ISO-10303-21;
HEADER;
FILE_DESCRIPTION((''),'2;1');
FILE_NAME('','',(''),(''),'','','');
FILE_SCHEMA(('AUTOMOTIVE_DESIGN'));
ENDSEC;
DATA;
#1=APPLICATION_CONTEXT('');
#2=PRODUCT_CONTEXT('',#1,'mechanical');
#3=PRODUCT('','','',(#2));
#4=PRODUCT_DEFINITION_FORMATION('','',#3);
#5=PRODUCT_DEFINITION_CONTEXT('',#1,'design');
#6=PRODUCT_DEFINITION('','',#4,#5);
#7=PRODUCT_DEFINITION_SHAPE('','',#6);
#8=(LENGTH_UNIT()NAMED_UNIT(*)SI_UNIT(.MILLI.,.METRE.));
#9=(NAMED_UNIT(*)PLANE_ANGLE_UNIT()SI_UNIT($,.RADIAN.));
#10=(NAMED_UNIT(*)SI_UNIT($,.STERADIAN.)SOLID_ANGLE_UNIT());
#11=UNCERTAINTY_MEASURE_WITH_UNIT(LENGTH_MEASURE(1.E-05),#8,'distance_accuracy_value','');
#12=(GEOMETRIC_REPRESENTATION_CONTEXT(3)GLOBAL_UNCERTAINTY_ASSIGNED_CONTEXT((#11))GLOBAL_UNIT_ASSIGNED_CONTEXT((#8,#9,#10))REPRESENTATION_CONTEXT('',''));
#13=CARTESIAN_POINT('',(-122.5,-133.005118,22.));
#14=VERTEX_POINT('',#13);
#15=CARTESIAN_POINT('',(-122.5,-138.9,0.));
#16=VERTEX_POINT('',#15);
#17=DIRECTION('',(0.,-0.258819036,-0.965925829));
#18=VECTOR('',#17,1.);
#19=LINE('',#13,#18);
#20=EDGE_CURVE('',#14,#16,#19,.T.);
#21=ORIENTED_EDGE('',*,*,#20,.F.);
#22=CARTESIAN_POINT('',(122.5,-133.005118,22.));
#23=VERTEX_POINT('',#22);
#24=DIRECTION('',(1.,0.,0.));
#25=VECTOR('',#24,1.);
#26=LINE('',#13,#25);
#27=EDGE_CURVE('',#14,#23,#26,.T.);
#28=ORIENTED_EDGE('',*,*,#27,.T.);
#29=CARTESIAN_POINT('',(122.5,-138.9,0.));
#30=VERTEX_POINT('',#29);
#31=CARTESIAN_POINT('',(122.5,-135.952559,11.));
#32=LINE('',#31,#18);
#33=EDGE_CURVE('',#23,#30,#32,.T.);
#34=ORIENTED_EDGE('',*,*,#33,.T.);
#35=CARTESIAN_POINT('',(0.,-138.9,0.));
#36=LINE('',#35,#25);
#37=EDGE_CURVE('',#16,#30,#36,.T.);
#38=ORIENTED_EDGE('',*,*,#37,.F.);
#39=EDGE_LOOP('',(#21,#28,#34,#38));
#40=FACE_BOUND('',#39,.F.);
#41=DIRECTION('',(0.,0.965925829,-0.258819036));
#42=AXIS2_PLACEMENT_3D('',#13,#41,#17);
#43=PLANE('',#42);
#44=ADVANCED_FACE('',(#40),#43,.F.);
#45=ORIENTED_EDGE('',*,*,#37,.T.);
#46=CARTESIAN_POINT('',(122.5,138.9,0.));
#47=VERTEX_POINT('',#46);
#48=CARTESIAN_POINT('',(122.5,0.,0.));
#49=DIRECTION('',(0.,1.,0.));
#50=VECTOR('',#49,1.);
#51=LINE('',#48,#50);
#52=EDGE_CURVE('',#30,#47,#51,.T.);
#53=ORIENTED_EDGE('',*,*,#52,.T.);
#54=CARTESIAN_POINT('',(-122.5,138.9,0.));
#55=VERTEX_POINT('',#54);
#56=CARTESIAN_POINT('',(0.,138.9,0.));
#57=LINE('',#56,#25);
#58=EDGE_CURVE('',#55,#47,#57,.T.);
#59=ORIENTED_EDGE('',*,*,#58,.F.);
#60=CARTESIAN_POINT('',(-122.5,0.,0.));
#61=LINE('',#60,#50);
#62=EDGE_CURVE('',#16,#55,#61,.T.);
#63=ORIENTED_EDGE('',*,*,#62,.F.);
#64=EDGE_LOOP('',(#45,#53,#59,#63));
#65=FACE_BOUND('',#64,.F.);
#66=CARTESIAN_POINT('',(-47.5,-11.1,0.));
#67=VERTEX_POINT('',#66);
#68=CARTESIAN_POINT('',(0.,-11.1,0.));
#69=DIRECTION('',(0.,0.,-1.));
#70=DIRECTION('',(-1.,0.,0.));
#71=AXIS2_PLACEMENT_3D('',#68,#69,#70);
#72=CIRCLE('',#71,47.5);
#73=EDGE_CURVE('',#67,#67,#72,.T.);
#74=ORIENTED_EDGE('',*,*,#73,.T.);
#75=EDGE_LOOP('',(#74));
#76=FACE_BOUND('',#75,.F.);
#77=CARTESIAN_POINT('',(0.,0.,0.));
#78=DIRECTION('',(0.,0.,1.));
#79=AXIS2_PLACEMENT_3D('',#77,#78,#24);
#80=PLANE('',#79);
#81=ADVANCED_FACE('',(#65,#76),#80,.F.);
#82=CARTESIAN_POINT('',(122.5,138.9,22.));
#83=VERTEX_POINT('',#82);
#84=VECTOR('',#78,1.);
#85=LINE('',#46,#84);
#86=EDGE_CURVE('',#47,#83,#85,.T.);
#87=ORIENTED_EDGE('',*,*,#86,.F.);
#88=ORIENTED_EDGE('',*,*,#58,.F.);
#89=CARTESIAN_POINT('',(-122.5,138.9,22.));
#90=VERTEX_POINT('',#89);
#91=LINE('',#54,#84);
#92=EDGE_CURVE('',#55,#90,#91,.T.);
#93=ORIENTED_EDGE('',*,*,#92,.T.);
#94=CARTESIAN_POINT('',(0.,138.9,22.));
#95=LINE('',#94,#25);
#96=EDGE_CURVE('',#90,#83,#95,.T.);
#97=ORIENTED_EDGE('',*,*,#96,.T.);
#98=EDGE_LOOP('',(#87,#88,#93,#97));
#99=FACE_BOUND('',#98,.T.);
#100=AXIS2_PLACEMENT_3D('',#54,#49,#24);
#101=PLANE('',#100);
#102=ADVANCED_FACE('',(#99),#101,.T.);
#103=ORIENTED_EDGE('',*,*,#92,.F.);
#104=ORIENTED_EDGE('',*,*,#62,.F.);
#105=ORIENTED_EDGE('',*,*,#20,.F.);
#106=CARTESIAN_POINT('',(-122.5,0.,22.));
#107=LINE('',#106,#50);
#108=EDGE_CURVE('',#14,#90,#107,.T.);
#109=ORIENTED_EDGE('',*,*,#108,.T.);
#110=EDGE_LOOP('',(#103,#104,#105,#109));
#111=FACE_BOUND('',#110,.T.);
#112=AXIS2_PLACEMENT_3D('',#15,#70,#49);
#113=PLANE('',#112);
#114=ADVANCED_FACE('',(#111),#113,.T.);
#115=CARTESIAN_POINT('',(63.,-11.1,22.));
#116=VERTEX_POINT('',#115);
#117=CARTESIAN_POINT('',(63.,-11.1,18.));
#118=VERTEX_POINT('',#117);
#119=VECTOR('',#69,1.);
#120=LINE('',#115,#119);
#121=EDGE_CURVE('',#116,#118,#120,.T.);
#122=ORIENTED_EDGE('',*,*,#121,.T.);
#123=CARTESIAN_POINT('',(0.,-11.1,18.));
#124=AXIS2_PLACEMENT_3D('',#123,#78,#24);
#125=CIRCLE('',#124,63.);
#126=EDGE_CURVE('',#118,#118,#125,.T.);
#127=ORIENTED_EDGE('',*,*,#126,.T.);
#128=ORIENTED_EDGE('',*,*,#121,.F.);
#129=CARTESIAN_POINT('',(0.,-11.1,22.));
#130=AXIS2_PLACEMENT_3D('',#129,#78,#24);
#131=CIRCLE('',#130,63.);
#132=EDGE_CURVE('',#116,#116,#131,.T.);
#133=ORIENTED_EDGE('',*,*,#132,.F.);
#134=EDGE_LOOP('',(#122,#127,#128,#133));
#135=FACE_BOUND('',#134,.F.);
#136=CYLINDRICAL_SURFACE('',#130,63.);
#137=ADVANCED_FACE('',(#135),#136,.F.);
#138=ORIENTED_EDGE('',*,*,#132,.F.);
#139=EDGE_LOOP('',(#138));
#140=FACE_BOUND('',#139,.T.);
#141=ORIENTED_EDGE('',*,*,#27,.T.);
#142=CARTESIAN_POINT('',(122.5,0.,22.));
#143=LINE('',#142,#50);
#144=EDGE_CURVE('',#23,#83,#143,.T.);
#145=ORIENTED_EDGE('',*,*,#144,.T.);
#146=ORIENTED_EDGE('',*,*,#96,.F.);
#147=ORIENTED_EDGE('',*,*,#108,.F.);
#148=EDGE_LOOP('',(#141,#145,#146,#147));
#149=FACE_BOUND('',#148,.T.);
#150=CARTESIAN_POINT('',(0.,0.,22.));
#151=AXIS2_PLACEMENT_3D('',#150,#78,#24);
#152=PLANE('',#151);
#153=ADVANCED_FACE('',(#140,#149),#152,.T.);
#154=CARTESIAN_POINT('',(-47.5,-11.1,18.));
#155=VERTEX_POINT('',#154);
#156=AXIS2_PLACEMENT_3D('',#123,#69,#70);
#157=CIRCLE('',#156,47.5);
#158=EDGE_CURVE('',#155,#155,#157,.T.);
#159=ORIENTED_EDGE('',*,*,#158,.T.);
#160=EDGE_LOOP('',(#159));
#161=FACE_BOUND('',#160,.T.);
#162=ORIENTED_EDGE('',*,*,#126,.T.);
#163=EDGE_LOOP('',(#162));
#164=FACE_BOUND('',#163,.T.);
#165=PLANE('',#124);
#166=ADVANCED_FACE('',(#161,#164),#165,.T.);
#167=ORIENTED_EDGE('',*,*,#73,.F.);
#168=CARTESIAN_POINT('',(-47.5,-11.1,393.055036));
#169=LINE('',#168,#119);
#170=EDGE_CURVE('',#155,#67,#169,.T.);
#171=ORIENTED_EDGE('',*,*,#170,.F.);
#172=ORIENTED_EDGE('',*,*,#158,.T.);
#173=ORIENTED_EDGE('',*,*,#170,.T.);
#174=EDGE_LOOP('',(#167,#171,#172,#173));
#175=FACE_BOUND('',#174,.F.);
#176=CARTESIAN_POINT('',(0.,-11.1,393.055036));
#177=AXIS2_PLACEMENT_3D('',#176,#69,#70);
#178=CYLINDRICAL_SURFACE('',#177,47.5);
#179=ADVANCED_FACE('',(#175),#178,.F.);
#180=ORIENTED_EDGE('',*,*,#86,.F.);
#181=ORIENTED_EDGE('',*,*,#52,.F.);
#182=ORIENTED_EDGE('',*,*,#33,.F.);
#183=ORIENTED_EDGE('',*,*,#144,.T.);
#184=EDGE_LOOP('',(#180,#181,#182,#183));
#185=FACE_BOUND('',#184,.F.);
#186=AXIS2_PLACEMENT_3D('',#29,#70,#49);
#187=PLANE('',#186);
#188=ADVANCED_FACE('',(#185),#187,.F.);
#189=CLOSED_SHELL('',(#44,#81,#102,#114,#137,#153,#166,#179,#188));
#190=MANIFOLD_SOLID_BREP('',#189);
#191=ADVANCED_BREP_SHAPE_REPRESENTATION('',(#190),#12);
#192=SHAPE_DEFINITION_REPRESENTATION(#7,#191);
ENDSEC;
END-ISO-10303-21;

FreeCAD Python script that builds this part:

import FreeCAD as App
import Part
import Sketcher
from FreeCAD import Vector
Q = App.Units.Quantity


def add_polygon(sketch, points):
    """Adds a closed chain of lines whose ends are joined by coincident constraints."""
    first, n = sketch.GeometryCount, len(points)
    for a, b in zip(points, points[1:] + points[:1]):
        sketch.addGeometry(Part.LineSegment(App.Vector(*a, 0), App.Vector(*b, 0)), False)
    for i in range(n):
        sketch.addConstraint(Sketcher.Constraint("Coincident", first + i, 2, first + (i + 1) % n, 1))

doc = App.newDocument("Part")
body = doc.addObject("PartDesign::Body", "Body")

# Sketch on XY plane
sketch1 = body.newObject("Sketcher::SketchObject", "Sketch")
sketch1.AttachmentSupport = (doc.getObject("XY_Plane"), [""])
sketch1.MapMode = "FlatFace"
add_polygon(sketch1, [(-122.5, 138.9), (-122.5, -138.9), (122.5, -138.9), (122.5, 138.9)])  # lines 0-3
sketch1.addConstraint(Sketcher.Constraint("Vertical", 0))
sketch1.addConstraint(Sketcher.Constraint("Horizontal", 1))
sketch1.addConstraint(Sketcher.Constraint("Vertical", 2))
sketch1.addConstraint(Sketcher.Constraint("Horizontal", 3))
sketch1.addConstraint(Sketcher.Constraint("Symmetric", 0, 2, 2, 2, -1, 1))
sketch1.addConstraint(Sketcher.Constraint("DistanceX", 1, 1, 1, 2, 245.0))
sketch1.addConstraint(Sketcher.Constraint("DistanceY", 0, 2, 0, 1, 277.8))
pad1 = body.newObject("PartDesign::Pad", "Pad")
pad1.Profile = sketch1
pad1.Length = 22

# Sketch on XY plane
sketch2 = body.newObject("Sketcher::SketchObject", "Sketch001")
sketch2.AttachmentSupport = (doc.getObject("XY_Plane"), [""])
sketch2.MapMode = "FlatFace"
sketch2.AttachmentOffset = App.Placement(Vector(0, 0, 22), App.Rotation())
sketch2.addGeometry(Part.Circle(Vector(0, -11.1, 0), Vector(0, 0, 1), 47.5), False)
sketch2.addConstraint(Sketcher.Constraint("PointOnObject", 0, 3, -2))
sketch2.addConstraint(Sketcher.Constraint("Diameter", 0, 95.0))
sketch2.addConstraint(Sketcher.Constraint("DistanceY", 0, 3, -1, 1, 11.1))
doc.recompute()
hole = body.newObject("PartDesign::Hole", "Hole")
hole.Profile = sketch2
hole.ThreadType = "None"
hole.Diameter = 95
hole.DepthType = "ThroughAll"

# Sketch on XY plane
sketch3 = body.newObject("Sketcher::SketchObject", "Sketch002")
sketch3.AttachmentSupport = (doc.getObject("XY_Plane"), [""])
sketch3.MapMode = "FlatFace"
sketch3.AttachmentOffset = App.Placement(Vector(0, 0, 22), App.Rotation())
sketch3.addGeometry(Part.Circle(Vector(0, -11.1, 0), Vector(0, 0, 1), 63), False)
sketch3.addConstraint(Sketcher.Constraint("PointOnObject", 0, 3, -2))
sketch3.addConstraint(Sketcher.Constraint("Diameter", 0, 126.0))
sketch3.addConstraint(Sketcher.Constraint("DistanceY", 0, 3, -1, 1, 11.1))
pocket1 = body.newObject("PartDesign::Pocket", "Pocket")
pocket1.Profile = sketch3
pocket1.Length = 4

# Sketch on YZ plane
sketch4 = body.newObject("Sketcher::SketchObject", "Sketch003")
sketch4.AttachmentSupport = (doc.getObject("YZ_Plane"), [""])
sketch4.MapMode = "FlatFace"
sketch4.AttachmentOffset = App.Placement(Vector(0, 0, -122.5), App.Rotation())
add_polygon(sketch4, [(-133.005118, 22), (-138.9, 0), (-138.9, 22)])  # lines 0-2
sketch4.addConstraint(Sketcher.Constraint("Vertical", 1))
sketch4.addConstraint(Sketcher.Constraint("Horizontal", 2))
sketch4.addConstraint(Sketcher.Constraint("PointOnObject", 0, 2, -1))
sketch4.addConstraint(Sketcher.Constraint("DistanceY", 1, 1, 1, 2, 22.0))
sketch4.addConstraint(Sketcher.Constraint("Angle", 0, Q("-104.999999 deg")))
sketch4.addConstraint(Sketcher.Constraint("DistanceX", 0, 2, -1, 1, 138.9))
pocket2 = body.newObject("PartDesign::Pocket", "Pocket001")
pocket2.Profile = sketch4
pocket2.Type = "ThroughAll"
pocket2.Reversed = True

doc.recompute()
